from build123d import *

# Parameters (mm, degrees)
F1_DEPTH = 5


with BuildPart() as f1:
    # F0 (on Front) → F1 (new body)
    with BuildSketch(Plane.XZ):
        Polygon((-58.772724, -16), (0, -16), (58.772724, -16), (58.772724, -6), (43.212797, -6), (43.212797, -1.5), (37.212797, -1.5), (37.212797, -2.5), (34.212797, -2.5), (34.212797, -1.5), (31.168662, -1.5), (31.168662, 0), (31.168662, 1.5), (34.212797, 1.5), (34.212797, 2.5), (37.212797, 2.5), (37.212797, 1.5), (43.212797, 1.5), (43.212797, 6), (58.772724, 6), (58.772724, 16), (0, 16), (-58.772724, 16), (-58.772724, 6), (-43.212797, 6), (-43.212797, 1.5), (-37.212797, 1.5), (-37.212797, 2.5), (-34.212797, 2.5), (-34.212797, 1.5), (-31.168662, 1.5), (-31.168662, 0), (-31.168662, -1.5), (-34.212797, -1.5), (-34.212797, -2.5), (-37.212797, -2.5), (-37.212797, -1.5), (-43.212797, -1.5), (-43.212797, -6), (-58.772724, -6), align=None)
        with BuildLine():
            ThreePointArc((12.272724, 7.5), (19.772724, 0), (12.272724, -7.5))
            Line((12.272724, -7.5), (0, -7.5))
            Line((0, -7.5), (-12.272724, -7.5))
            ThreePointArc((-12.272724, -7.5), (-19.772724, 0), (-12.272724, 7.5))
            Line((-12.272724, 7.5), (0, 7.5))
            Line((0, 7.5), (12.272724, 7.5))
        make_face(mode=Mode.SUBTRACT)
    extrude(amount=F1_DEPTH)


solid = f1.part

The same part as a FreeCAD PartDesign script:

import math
import FreeCAD as App
import Part
import Sketcher


def add_polygon(sketch, points):
    """Adds a closed chain of lines whose ends are joined by coincident constraints."""
    first, n = sketch.GeometryCount, len(points)
    for a, b in zip(points, points[1:] + points[:1]):
        sketch.addGeometry(Part.LineSegment(App.Vector(*a, 0), App.Vector(*b, 0)), False)
    for i in range(n):
        sketch.addConstraint(Sketcher.Constraint("Coincident", first + i, 2, first + (i + 1) % n, 1))

doc = App.newDocument("Part")
body = doc.addObject("PartDesign::Body", "Body")

# Sketch on XZ plane
sketch1 = body.newObject("Sketcher::SketchObject", "Sketch")
sketch1.AttachmentSupport = (doc.getObject("XZ_Plane"), [""])
sketch1.MapMode = "FlatFace"
add_polygon(sketch1, [(-58.8, -16), (58.8, -16), (58.8, -6), (43.2, -6), (43.2, -1.5), (37.2, -1.5), (37.2, -2.5), (34.2, -2.5), (34.2, -1.5), (31.2, -1.5), (31.2, 1.5), (34.2, 1.5), (34.2, 2.5), (37.2, 2.5), (37.2, 1.5), (43.2, 1.5), (43.2, 6), (58.8, 6), (58.8, 16), (-58.8, 16), (-58.8, 6), (-43.2, 6), (-43.2, 1.5), (-37.2, 1.5), (-37.2, 2.5), (-34.2, 2.5), (-34.2, 1.5), (-31.2, 1.5), (-31.2, -1.5), (-34.2, -1.5), (-34.2, -2.5), (-37.2, -2.5), (-37.2, -1.5), (-43.2, -1.5), (-43.2, -6), (-58.8, -6)])  # lines 0-35
sketch1.addGeometry(Part.LineSegment(App.Vector(-12.3, 7.5, 0), App.Vector(12.3, 7.5, 0)), False)  # 36
sketch1.addGeometry(Part.ArcOfCircle(Part.Circle(App.Vector(12.3, 0, 0), App.Vector(0, 0, 1), 7.5), math.radians(-90), math.radians(90)), False)  # 37
sketch1.addGeometry(Part.LineSegment(App.Vector(12.3, -7.5, 0), App.Vector(-12.3, -7.5, 0)), False)  # 38
sketch1.addGeometry(Part.ArcOfCircle(Part.Circle(App.Vector(-12.3, 0, 0), App.Vector(0, 0, 1), 7.5), math.radians(90), math.radians(270)), False)  # 39
sketch1.addConstraint([
    Sketcher.Constraint("Tangent", 36, 2, 37, 2),
    Sketcher.Constraint("Tangent", 37, 1, 38, 1),
    Sketcher.Constraint("Tangent", 38, 2, 39, 2),
    Sketcher.Constraint("Tangent", 39, 1, 36, 1),
    Sketcher.Constraint("Horizontal", 0),
    Sketcher.Constraint("Vertical", 1),
    Sketcher.Constraint("Horizontal", 2),
    Sketcher.Constraint("Vertical", 3),
    Sketcher.Constraint("Horizontal", 4),
    Sketcher.Constraint("Vertical", 5),
    Sketcher.Constraint("Horizontal", 6),
    Sketcher.Constraint("Vertical", 7),
    Sketcher.Constraint("Horizontal", 8),
    Sketcher.Constraint("Vertical", 9),
    Sketcher.Constraint("Horizontal", 10),
    Sketcher.Constraint("Vertical", 11),
    Sketcher.Constraint("Horizontal", 12),
    Sketcher.Constraint("Vertical", 13),
    Sketcher.Constraint("Horizontal", 14),
    Sketcher.Constraint("Vertical", 15),
    Sketcher.Constraint("Horizontal", 16),
    Sketcher.Constraint("Vertical", 17),
    Sketcher.Constraint("Horizontal", 18),
    Sketcher.Constraint("Vertical", 19),
    Sketcher.Constraint("Horizontal", 20),
    Sketcher.Constraint("Vertical", 21),
    Sketcher.Constraint("Horizontal", 22),
    Sketcher.Constraint("Vertical", 23),
    Sketcher.Constraint("Horizontal", 24),
    Sketcher.Constraint("Vertical", 25),
    Sketcher.Constraint("Horizontal", 26),
    Sketcher.Constraint("Vertical", 27),
    Sketcher.Constraint("Horizontal", 28),
    Sketcher.Constraint("Vertical", 29),
    Sketcher.Constraint("Horizontal", 30),
    Sketcher.Constraint("Vertical", 31),
    Sketcher.Constraint("Horizontal", 32),
    Sketcher.Constraint("Vertical", 33),
    Sketcher.Constraint("Horizontal", 34),
    Sketcher.Constraint("Vertical", 35),
    Sketcher.Constraint("Horizontal", 36),
    Sketcher.Constraint("Horizontal", 38),
    Sketcher.Constraint("Symmetric", 37, 3, 39, 3, -1, 1),
    Sketcher.Constraint("Symmetric", 0, 2, 18, 2, -1, 1),
    Sketcher.Constraint("Symmetric", 2, 2, 20, 2, -1, 1),
    Sketcher.Constraint("Symmetric", 4, 2, 22, 2, -1, 1),
    Sketcher.Constraint("Symmetric", 6, 2, 24, 2, -1, 1),
    Sketcher.Constraint("Symmetric", 8, 2, 26, 2, -1, 1),
    Sketcher.Constraint("Symmetric", 10, 2, 28, 2, -1, 1),
    Sketcher.Constraint("Symmetric", 12, 2, 30, 2, -1, 1),
    Sketcher.Constraint("Symmetric", 14, 2, 32, 2, -1, 1),
    Sketcher.Constraint("Symmetric", 16, 2, 34, 2, -1, 1),
    Sketcher.Constraint("Symmetric", 16, 2, 19, 2, -2),
    Sketcher.Constraint("Symmetric", 14, 2, 21, 2, -2),
    Sketcher.Constraint("Symmetric", 12, 2, 23, 2, -2),
    Sketcher.Constraint("Symmetric", 10, 2, 25, 2, -2),
    Sketcher.Constraint("Horizontal", 4, 2, 7, 2),
    Sketcher.Constraint("Equal", 30, 9),
    Sketcher.Constraint("Radius", 37, 7.5),
    Sketcher.Constraint("DistanceX", 4, 2, 4, 1, 6.0),
    Sketcher.Constraint("DistanceX", 6, 2, 6, 1, 3.0),
    Sketcher.Constraint("DistanceY", 1, 1, 1, 2, 10.0),
    Sketcher.Constraint("DistanceY", 5, 2, 5, 1, 1.0),
    Sketcher.Constraint("DistanceY", 3, 1, 3, 2, 4.5),
    Sketcher.Constraint("DistanceX", 37, 3, 0, 2, 46.5),
    Sketcher.Constraint("DistanceX", 36, 1, 36, 2, 24.545448),
    Sketcher.Constraint("DistanceX", 2, 2, 2, 1, 15.559927),
    Sketcher.Constraint("DistanceX", 8, 2, 8, 1, 3.044135),
])
pad1 = body.newObject("PartDesign::Pad", "Pad")
pad1.Profile = sketch1
pad1.Length = 5

doc.recompute()
